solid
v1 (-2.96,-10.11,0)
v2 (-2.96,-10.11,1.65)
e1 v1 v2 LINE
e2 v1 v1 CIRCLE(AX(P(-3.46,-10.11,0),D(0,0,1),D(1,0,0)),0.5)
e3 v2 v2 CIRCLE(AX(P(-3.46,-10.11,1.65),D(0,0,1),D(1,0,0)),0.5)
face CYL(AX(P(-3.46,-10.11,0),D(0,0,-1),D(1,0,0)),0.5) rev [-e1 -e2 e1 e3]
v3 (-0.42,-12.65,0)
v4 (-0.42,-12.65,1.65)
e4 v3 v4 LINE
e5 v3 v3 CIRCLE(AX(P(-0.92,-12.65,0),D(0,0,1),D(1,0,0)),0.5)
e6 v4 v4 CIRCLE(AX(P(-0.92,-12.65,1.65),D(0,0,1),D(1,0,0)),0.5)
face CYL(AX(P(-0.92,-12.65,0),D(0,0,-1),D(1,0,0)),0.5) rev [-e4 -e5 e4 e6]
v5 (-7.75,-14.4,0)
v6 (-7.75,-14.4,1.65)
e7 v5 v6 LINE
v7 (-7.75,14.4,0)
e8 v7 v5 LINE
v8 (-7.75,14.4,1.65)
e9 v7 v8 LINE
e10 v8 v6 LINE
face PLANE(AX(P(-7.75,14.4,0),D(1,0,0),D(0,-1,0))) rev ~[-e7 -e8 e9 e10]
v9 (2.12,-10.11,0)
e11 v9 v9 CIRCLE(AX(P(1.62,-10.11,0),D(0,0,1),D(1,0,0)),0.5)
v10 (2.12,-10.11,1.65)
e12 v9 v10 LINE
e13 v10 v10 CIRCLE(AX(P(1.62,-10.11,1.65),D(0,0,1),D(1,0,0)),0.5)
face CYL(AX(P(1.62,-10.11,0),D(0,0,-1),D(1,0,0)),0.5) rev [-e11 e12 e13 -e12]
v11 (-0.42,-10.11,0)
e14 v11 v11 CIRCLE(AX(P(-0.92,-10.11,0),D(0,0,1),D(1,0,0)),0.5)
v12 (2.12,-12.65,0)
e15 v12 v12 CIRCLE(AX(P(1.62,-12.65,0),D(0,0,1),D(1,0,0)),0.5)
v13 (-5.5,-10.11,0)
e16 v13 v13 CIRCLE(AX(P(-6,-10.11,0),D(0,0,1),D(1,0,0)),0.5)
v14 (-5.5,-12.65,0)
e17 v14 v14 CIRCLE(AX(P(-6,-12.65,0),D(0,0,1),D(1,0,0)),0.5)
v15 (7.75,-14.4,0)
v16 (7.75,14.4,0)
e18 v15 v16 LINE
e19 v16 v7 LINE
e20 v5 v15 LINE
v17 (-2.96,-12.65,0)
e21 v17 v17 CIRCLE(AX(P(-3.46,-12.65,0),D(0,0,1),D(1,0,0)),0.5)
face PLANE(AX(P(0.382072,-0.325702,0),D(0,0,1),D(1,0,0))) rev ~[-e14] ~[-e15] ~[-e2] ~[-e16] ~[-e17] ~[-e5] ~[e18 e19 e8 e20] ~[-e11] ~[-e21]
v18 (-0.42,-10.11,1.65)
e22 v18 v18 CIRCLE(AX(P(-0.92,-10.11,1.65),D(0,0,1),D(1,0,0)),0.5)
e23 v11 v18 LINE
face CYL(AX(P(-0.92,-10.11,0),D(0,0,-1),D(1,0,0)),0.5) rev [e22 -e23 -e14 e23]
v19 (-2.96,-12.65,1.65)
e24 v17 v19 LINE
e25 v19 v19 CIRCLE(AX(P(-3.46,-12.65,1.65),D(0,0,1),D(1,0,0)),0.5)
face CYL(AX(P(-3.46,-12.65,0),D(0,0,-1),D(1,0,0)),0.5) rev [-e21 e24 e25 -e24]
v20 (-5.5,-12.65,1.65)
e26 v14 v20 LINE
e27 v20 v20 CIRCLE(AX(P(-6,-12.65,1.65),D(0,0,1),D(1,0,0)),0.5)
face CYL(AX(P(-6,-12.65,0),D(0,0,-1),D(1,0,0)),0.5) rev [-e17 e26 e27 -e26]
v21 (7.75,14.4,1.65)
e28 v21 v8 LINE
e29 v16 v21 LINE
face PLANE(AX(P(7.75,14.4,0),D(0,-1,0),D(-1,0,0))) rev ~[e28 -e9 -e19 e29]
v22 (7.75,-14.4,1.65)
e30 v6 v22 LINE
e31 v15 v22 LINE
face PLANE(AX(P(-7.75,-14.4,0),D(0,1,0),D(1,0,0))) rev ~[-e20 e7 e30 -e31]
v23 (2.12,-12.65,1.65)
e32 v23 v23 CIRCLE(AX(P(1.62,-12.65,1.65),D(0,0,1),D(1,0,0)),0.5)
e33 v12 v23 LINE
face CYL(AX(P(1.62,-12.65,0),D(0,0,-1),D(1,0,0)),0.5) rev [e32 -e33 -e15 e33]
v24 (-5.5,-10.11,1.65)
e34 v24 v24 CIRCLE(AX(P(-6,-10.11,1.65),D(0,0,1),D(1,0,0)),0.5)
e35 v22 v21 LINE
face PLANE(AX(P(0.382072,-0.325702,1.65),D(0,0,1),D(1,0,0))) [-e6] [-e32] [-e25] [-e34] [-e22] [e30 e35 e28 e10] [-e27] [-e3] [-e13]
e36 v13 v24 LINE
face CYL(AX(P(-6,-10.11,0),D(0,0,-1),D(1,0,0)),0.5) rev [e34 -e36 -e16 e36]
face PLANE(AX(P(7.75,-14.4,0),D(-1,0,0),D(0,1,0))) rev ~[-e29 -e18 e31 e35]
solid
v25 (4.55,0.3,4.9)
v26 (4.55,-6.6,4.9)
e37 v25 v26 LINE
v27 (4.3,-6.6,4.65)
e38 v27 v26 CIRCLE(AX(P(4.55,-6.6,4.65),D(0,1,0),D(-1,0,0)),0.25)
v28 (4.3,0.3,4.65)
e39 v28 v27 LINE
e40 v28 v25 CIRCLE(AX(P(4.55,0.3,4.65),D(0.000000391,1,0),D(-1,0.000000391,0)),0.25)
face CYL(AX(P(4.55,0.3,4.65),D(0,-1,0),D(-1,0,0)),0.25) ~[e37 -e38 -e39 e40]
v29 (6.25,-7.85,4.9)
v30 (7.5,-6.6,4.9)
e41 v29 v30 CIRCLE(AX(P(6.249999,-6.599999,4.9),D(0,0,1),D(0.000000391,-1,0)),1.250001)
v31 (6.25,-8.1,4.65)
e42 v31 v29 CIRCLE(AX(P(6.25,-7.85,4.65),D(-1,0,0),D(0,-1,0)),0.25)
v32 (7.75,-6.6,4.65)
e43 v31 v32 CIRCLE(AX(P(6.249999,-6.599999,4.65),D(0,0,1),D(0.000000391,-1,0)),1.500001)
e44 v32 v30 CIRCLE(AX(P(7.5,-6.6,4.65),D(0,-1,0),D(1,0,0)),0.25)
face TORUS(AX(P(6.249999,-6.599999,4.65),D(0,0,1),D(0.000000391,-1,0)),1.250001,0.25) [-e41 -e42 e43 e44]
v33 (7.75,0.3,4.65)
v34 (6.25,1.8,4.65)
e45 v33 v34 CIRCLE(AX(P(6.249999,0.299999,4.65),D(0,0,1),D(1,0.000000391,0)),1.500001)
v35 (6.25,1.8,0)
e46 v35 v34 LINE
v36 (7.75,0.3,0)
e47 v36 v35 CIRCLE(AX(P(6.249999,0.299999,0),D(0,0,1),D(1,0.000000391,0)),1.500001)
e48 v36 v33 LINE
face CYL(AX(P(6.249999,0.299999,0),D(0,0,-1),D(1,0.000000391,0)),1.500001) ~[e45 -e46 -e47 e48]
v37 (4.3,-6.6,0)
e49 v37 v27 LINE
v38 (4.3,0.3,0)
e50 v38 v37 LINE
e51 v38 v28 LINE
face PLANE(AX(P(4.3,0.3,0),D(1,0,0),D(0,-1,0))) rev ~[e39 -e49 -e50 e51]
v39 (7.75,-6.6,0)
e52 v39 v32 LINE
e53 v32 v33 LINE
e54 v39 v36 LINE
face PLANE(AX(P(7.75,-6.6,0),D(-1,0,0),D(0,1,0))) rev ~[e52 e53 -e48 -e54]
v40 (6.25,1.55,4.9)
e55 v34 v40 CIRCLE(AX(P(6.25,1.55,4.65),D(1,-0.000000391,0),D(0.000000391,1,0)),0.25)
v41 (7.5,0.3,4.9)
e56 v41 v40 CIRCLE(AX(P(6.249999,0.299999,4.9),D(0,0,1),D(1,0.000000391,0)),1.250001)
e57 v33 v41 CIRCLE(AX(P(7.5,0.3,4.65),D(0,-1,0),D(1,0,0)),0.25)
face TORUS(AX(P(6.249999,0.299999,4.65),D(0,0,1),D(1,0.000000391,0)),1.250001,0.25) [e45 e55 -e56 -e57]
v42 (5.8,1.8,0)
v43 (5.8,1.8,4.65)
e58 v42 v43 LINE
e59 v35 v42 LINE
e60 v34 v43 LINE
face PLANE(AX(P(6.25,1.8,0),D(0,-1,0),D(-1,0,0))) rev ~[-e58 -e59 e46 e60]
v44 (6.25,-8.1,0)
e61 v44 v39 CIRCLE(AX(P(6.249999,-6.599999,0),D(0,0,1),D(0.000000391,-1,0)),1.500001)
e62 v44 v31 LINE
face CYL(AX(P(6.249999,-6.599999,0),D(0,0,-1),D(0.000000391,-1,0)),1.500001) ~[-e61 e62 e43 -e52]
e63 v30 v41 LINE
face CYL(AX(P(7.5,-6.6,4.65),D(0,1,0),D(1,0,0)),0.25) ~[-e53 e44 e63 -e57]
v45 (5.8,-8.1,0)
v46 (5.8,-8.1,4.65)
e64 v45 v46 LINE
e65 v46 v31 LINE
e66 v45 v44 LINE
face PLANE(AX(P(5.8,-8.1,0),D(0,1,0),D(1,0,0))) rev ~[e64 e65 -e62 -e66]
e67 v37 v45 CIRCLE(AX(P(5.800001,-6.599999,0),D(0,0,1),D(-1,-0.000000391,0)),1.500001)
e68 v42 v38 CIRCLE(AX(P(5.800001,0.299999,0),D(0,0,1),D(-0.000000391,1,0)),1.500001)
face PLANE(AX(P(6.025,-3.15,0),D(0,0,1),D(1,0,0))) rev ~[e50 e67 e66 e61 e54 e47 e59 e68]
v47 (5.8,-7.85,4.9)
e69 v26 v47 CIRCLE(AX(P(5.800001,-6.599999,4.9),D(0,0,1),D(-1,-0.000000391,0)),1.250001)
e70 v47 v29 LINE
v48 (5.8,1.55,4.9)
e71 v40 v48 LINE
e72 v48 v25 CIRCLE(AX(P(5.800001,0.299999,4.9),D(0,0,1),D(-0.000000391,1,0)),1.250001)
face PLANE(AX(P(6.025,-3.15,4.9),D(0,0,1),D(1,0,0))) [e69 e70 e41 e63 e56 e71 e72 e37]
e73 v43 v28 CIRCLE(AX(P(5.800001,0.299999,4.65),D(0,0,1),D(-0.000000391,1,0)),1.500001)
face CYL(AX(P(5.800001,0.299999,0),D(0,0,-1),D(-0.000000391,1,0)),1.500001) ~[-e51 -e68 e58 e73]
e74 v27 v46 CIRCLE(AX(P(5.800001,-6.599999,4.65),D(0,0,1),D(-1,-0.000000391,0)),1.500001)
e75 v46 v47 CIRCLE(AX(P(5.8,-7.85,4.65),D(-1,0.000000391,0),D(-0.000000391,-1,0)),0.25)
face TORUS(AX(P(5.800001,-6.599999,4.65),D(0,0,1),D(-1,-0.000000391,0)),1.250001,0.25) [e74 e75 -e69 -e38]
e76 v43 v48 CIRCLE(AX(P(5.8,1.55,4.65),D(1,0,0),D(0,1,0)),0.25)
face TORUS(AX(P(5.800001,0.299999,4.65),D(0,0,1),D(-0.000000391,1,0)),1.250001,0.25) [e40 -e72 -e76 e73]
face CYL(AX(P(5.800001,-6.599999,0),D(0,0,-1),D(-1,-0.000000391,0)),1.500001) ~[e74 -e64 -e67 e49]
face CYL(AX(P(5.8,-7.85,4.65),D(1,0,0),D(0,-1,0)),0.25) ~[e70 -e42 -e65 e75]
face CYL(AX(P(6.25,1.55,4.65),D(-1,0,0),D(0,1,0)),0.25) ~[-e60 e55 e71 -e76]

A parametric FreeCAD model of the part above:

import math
import FreeCAD as App
import Part
import Sketcher

V = App.Vector
Q = App.Units.Quantity


def edges_at(feature, points):
    """Names of the edges that pass closest to the given points."""
    edges = feature.Shape.Edges
    near = lambda p: min(range(len(edges)), key=lambda i: edges[i].distToShape(Part.Vertex(*p))[0])
    return sorted({f"Edge{near(p) + 1}" for p in points})


def add_polygon(sketch, points):
    """Adds a closed chain of lines whose ends are joined by coincident constraints."""
    first, n = sketch.GeometryCount, len(points)
    for a, b in zip(points, points[1:] + points[:1]):
        sketch.addGeometry(Part.LineSegment(App.Vector(*a, 0), App.Vector(*b, 0)), False)
    for i in range(n):
        sketch.addConstraint(Sketcher.Constraint("Coincident", first + i, 2, first + (i + 1) % n, 1))

doc = App.newDocument("Part")
params = doc.addObject("Spreadsheet::Sheet", "Params")
for row, (alias, value) in enumerate([
    ("sketch1_diameter", "1 mm"),
    ("sketch1_width", "15.5 mm"),
    ("sketch1_height", "28.8 mm"),
    ("pad1_length", "1.65 mm"),
    ("sketch2_radius", "1.500001 mm"),
    ("sketch2_height", "6.9 mm"),
    ("sketch2_width", "0.45 mm"),
    ("pad2_length", "4.9 mm"),
    ("fillet_radius", "0.25 mm"),
], start=1):
    params.set(f"A{row}", alias)
    params.set(f"B{row}", "=" + value)
    params.setAlias(f"B{row}", alias)

body = doc.addObject("PartDesign::Body", "Body")

sketch1 = body.newObject("Sketcher::SketchObject", "Sketch")
sketch1.AttachmentSupport = (doc.getObject("XY_Plane"), [""])
sketch1.MapMode = "FlatFace"
add_polygon(sketch1, [(7.8, 14.4), (-7.8, 14.4), (-7.8, -14.4), (7.8, -14.4)])
sketch1.addGeometry(Part.Circle(V(-6, -12.7, 0), V(0, 0, 1), 0.5), False)
sketch1.addGeometry(Part.Circle(V(-3.5, -12.7, 0), V(0, 0, 1), 0.5), False)
sketch1.addGeometry(Part.Circle(V(-0.9, -12.7, 0), V(0, 0, 1), 0.5), False)
sketch1.addGeometry(Part.Circle(V(1.6, -12.7, 0), V(0, 0, 1), 0.5), False)
sketch1.addGeometry(Part.Circle(V(-6, -10.1, 0), V(0, 0, 1), 0.5), False)
sketch1.addGeometry(Part.Circle(V(-3.5, -10.1, 0), V(0, 0, 1), 0.5), False)
sketch1.addGeometry(Part.Circle(V(-0.9, -10.1, 0), V(0, 0, 1), 0.5), False)
sketch1.addGeometry(Part.Circle(V(1.6, -10.1, 0), V(0, 0, 1), 0.5), False)
sketch1.addConstraint([
    Sketcher.Constraint("Horizontal", 0),
    Sketcher.Constraint("Vertical", 1),
    Sketcher.Constraint("Horizontal", 2),
    Sketcher.Constraint("Vertical", 3),
    Sketcher.Constraint("Equal", 4, 5),
    Sketcher.Constraint("Equal", 5, 6),
    Sketcher.Constraint("Equal", 6, 7),
    Sketcher.Constraint("Equal", 7, 8),
    Sketcher.Constraint("Equal", 8, 9),
    Sketcher.Constraint("Equal", 9, 10),
    Sketcher.Constraint("Equal", 10, 11),
    Sketcher.Constraint("Symmetric", 0, 2, 2, 2, -1, 1),
    Sketcher.Constraint("Horizontal", 4, 3, 5, 3),
    Sketcher.Constraint("Horizontal", 5, 3, 6, 3),
    Sketcher.Constraint("Horizontal", 6, 3, 7, 3),
    Sketcher.Constraint("Horizontal", 8, 3, 9, 3),
    Sketcher.Constraint("Horizontal", 9, 3, 10, 3),
    Sketcher.Constraint("Horizontal", 10, 3, 11, 3),
    Sketcher.Constraint("Vertical", 4, 3, 8, 3),
    Sketcher.Constraint("Vertical", 5, 3, 9, 3),
    Sketcher.Constraint("Vertical", 6, 3, 10, 3),
    Sketcher.Constraint("Vertical", 7, 3, 11, 3),
    Sketcher.Constraint("Diameter", 4, Q("1 mm")),
    Sketcher.Constraint("DistanceX", 0, 2, 0, 1, Q("15.5 mm")),
    Sketcher.Constraint("DistanceY", 1, 2, 1, 1, Q("28.8 mm")),
    Sketcher.Constraint("DistanceX", 4, 3, -1, 1, Q("6 mm")),
    Sketcher.Constraint("DistanceY", 4, 3, -1, 1, Q("12.65 mm")),
    Sketcher.Constraint("DistanceX", 5, 3, -1, 1, Q("3.46 mm")),
    Sketcher.Constraint("DistanceX", 6, 3, -1, 1, Q("0.92 mm")),
    Sketcher.Constraint("DistanceX", -1, 1, 7, 3, Q("1.62 mm")),
    Sketcher.Constraint("DistanceY", 8, 3, -1, 1, Q("10.11 mm")),
])
sketch1.setExpression("Constraints[26]", "Params.sketch1_diameter")
sketch1.setExpression("Constraints[27]", "Params.sketch1_width")
sketch1.setExpression("Constraints[28]", "Params.sketch1_height")
pad1 = body.newObject("PartDesign::Pad", "Pad")
pad1.Profile = sketch1
pad1.setExpression("Length", "Params.pad1_length")
body2 = doc.addObject("PartDesign::Body", "Body001")

sketch2 = body2.newObject("Sketcher::SketchObject", "Sketch001")
sketch2.AttachmentSupport = (doc.getObject("XY_Plane001"), [""])
sketch2.MapMode = "FlatFace"
sketch2.addGeometry([
    Part.LineSegment(V(7.75, -6.6, 0), V(7.75, 0.3, 0)),
    Part.ArcOfCircle(Part.Circle(V(6.25, 0.3, 0), V(0, 0, 1), 1.5), math.radians(0), math.radians(90)),
    Part.LineSegment(V(6.25, 1.8, 0), V(5.8, 1.8, 0)),
    Part.ArcOfCircle(Part.Circle(V(5.8, 0.3, 0), V(0, 0, 1), 1.5), math.radians(90), math.radians(180)),
    Part.LineSegment(V(4.3, 0.3, 0), V(4.3, -6.6, 0)),
    Part.ArcOfCircle(Part.Circle(V(5.8, -6.6, 0), V(0, 0, 1), 1.5), math.radians(-180), math.radians(-90)),
    Part.LineSegment(V(5.8, -8.1, 0), V(6.25, -8.1, 0)),
    Part.ArcOfCircle(Part.Circle(V(6.25, -6.6, 0), V(0, 0, 1), 1.5), math.radians(-90), math.radians(0)),
], False)
sketch2.addConstraint([
    Sketcher.Constraint("Tangent", 0, 2, 1, 1),
    Sketcher.Constraint("Tangent", 1, 2, 2, 1),
    Sketcher.Constraint("Tangent", 2, 2, 3, 1),
    Sketcher.Constraint("Tangent", 3, 2, 4, 1),
    Sketcher.Constraint("Tangent", 4, 2, 5, 1),
    Sketcher.Constraint("Tangent", 5, 2, 6, 1),
    Sketcher.Constraint("Tangent", 6, 2, 7, 1),
    Sketcher.Constraint("Tangent", 7, 2, 0, 1),
    Sketcher.Constraint("Vertical", 0),
    Sketcher.Constraint("Horizontal", 2),
    Sketcher.Constraint("Vertical", 4),
    Sketcher.Constraint("Horizontal", 6),
    Sketcher.Constraint("Equal", 1, 3),
    Sketcher.Constraint("Equal", 3, 5),
    Sketcher.Constraint("Equal", 5, 7),
    Sketcher.Constraint("Radius", 1, Q("1.500001 mm")),
    Sketcher.Constraint("DistanceY", 0, 1, 0, 2, Q("6.9 mm")),
    Sketcher.Constraint("DistanceX", 2, 2, 2, 1, Q("0.45 mm")),
    Sketcher.Constraint("DistanceY", -1, 1, 1, 3, Q("0.299999 mm")),
    Sketcher.Constraint("DistanceX", -1, 1, 3, 3, Q("5.800001 mm")),
])
sketch2.setExpression("Constraints[15]", "Params.sketch2_radius")
sketch2.setExpression("Constraints[16]", "Params.sketch2_height")
sketch2.setExpression("Constraints[17]", "Params.sketch2_width")
pad2 = body2.newObject("PartDesign::Pad", "Pad001")
pad2.Profile = sketch2
pad2.setExpression("Length", "Params.pad2_length")
doc.recompute()

fillet = body2.newObject("PartDesign::Fillet", "Fillet")
fillet.Base = (pad2, edges_at(pad2, [
    (7.75, -3.15, 4.9),
    (7.311, 1.361, 4.9),
    (6.025, 1.8, 4.9),
    (4.739, 1.361, 4.9),
    (4.3, -3.15, 4.9),
    (4.739, -7.661, 4.9),
    (6.025, -8.1, 4.9),
    (7.311, -7.661, 4.9),
]))
fillet.setExpression("Radius", "Params.fillet_radius")

doc.recompute()
